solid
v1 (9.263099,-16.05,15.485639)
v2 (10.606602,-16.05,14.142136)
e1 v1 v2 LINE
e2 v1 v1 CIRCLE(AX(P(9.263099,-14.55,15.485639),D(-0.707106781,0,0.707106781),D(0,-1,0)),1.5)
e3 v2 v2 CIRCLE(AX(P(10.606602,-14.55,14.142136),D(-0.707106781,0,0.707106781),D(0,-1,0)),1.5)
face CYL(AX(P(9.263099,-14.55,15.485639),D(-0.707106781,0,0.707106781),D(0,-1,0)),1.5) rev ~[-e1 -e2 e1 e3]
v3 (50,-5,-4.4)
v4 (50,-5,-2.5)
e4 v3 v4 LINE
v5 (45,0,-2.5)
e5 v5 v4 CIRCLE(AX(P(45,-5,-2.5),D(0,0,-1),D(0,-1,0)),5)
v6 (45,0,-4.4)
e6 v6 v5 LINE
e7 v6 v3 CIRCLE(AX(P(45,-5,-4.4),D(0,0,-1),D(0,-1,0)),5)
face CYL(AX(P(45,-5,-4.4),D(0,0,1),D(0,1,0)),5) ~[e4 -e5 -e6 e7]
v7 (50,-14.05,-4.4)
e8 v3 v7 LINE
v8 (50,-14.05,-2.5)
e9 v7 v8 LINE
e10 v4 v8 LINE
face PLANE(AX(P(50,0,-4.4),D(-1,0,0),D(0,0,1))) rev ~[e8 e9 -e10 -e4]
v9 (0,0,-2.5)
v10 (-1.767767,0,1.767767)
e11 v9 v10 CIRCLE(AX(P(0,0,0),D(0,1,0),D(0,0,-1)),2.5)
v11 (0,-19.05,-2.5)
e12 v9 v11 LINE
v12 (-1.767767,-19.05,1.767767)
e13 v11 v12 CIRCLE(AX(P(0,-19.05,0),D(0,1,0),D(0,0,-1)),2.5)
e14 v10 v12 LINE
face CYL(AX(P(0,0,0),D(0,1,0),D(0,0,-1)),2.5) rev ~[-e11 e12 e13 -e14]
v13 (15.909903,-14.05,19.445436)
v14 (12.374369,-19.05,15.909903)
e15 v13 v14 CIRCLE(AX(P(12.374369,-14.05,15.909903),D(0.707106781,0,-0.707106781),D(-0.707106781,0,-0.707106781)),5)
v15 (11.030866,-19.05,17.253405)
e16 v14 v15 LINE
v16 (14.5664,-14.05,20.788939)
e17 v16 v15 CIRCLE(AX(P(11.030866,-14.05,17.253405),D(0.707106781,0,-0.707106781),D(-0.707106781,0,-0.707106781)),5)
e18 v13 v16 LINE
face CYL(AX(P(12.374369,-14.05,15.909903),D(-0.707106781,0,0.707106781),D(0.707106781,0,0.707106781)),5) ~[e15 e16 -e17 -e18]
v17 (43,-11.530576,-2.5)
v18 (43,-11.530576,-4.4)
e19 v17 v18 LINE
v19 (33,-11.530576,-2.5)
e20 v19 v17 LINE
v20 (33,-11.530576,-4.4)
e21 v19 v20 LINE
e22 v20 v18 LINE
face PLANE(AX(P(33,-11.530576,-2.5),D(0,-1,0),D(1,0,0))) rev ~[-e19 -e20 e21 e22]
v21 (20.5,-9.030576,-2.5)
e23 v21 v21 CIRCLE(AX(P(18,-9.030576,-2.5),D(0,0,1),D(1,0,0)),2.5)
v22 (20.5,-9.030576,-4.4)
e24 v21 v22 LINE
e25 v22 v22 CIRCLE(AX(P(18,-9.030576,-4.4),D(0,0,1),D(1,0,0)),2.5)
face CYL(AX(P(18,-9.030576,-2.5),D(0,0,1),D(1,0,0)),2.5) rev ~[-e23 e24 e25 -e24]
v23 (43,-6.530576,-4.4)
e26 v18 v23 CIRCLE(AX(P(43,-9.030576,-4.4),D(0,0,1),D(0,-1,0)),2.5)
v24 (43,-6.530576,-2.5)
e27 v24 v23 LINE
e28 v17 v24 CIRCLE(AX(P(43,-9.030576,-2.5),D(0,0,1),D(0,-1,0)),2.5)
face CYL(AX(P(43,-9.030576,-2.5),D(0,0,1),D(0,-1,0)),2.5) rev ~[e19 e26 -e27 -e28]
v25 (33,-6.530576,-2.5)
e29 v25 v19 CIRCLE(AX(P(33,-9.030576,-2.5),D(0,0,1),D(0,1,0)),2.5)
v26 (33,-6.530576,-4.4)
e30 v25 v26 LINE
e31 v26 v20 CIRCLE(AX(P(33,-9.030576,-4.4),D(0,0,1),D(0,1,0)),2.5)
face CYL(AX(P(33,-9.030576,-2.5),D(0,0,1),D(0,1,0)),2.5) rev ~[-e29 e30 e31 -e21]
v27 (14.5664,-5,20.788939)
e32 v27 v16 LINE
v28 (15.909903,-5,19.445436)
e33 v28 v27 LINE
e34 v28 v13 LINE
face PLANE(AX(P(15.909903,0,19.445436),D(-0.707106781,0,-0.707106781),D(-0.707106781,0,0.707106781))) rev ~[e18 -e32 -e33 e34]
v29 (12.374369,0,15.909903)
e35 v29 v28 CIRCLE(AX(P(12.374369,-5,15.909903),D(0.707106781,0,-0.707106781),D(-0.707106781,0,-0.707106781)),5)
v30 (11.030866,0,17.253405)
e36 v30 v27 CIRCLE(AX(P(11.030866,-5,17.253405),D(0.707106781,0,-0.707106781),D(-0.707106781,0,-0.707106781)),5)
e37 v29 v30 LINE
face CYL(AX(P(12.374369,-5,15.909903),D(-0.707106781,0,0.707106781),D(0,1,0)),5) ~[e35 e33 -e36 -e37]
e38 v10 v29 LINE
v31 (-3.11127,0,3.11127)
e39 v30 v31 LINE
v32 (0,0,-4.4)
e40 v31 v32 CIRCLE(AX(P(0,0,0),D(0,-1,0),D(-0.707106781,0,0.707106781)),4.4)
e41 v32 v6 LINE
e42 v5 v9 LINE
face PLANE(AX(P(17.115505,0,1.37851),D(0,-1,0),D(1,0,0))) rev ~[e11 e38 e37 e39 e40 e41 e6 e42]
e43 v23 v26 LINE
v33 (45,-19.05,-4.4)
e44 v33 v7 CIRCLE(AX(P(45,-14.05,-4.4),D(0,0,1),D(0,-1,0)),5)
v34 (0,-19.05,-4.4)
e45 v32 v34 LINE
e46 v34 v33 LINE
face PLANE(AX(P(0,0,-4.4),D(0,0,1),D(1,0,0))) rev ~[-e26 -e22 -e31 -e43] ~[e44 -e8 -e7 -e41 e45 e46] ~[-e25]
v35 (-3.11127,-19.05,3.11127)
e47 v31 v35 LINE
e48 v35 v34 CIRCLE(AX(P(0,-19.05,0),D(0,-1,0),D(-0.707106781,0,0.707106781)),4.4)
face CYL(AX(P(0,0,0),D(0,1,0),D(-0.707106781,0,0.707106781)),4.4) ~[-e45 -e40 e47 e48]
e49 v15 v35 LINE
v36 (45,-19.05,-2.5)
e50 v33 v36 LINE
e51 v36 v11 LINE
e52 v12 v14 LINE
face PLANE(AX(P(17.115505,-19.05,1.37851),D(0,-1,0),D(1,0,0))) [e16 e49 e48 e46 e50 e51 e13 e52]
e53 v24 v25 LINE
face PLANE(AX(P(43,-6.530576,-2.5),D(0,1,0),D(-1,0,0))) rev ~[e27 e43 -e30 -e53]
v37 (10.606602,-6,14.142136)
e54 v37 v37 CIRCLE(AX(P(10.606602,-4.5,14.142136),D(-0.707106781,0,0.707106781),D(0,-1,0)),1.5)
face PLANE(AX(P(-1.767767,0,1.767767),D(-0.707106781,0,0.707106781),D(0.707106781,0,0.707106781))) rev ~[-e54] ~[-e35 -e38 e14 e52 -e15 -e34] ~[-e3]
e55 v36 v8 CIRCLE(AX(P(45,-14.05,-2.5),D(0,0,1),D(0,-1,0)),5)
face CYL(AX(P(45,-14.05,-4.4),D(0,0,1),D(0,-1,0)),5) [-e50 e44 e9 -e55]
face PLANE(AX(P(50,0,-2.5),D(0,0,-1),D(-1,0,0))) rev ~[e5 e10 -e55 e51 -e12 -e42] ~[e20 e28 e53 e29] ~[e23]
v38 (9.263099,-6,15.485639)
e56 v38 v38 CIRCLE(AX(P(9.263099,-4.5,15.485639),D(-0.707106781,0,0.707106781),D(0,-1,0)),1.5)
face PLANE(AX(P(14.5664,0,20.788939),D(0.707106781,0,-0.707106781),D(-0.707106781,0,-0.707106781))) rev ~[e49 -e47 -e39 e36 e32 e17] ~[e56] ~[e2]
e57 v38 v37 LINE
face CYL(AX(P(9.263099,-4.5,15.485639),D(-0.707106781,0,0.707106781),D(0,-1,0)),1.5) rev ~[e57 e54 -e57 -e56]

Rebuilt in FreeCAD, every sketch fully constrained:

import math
import FreeCAD as App
import Part
import Sketcher
from FreeCAD import Vector
Q = App.Units.Quantity


def edges_at(feature, points):
    """Names of the edges that pass closest to the given points."""
    edges = feature.Shape.Edges
    near = lambda p: min(range(len(edges)), key=lambda i: edges[i].distToShape(Part.Vertex(*p))[0])
    return sorted({f"Edge{near(p) + 1}" for p in points})

doc = App.newDocument("Part")
body = doc.addObject("PartDesign::Body", "Body")

# Sketch on XZ plane
sketch1 = body.newObject("Sketcher::SketchObject", "Sketch")
sketch1.AttachmentSupport = (doc.getObject("XZ_Plane"), [""])
sketch1.MapMode = "FlatFace"
sketch1.addGeometry([
    Part.LineSegment(Vector(14.6, 20.8, 0), Vector(-3.1, 3.1, 0)),  # 0
    Part.ArcOfCircle(Part.Circle(Vector(0, 0, 0), Vector(0, 0, 1), 4.4), math.radians(135), math.radians(270)),  # 1
    Part.LineSegment(Vector(0, -4.4, 0), Vector(50, -4.4, 0)),  # 2
    Part.LineSegment(Vector(50, -4.4, 0), Vector(50, -2.5, 0)),  # 3
    Part.LineSegment(Vector(50, -2.5, 0), Vector(0, -2.5, 0)),  # 4
    Part.ArcOfCircle(Part.Circle(Vector(0, 0, 0), Vector(0, 0, 1), 2.5), math.radians(135), math.radians(270)),  # 5
    Part.LineSegment(Vector(-1.8, 1.8, 0), Vector(15.9, 19.4, 0)),  # 6
    Part.LineSegment(Vector(15.9, 19.4, 0), Vector(14.6, 20.8, 0)),  # 7
], False)
sketch1.addConstraint([
    Sketcher.Constraint("Tangent", 0, 2, 1, 1),
    Sketcher.Constraint("Tangent", 1, 2, 2, 1),
    Sketcher.Constraint("Coincident", 2, 2, 3, 1),
    Sketcher.Constraint("Coincident", 3, 2, 4, 1),
    Sketcher.Constraint("Tangent", 4, 2, 5, 2),
    Sketcher.Constraint("Tangent", 5, 1, 6, 1),
    Sketcher.Constraint("Coincident", 6, 2, 7, 1),
    Sketcher.Constraint("Coincident", 7, 2, 0, 1),
    Sketcher.Constraint("Horizontal", 2),
    Sketcher.Constraint("Vertical", 3),
    Sketcher.Constraint("Horizontal", 4),
    Sketcher.Constraint("Coincident", 1, 3, -1, 1),
    Sketcher.Constraint("Coincident", 5, 3, -1, 1),
    Sketcher.Constraint("Parallel", 0, 6),
    Sketcher.Constraint("Perpendicular", 6, 7),
    Sketcher.Constraint("Radius", 1, 4.4),
    Sketcher.Constraint("Radius", 5, 2.5),
    Sketcher.Constraint("DistanceX", 2, 1, 2, 2, 50.0),
    Sketcher.Constraint("Angle", 0, Q("-135 deg")),
    Sketcher.Constraint("Distance", 0, 25.0),
])
pad1 = body.newObject("PartDesign::Pad", "Pad")
pad1.Profile = sketch1
pad1.Length = 19.05

# Sketch on XY plane
sketch2 = body.newObject("Sketcher::SketchObject", "Sketch001")
sketch2.AttachmentSupport = (doc.getObject("XY_Plane"), [""])
sketch2.MapMode = "FlatFace"
sketch2.AttachmentOffset = App.Placement(Vector(0, 0, -2.5), App.Rotation())
sketch2.addGeometry([
    Part.Circle(Vector(18, -9, 0), Vector(0, 0, 1), 2.5),  # 0
    Part.LineSegment(Vector(33, -11.5, 0), Vector(43, -11.5, 0)),  # 1
    Part.ArcOfCircle(Part.Circle(Vector(43, -9, 0), Vector(0, 0, 1), 2.5), math.radians(-90), math.radians(90)),  # 2
    Part.LineSegment(Vector(43, -6.5, 0), Vector(33, -6.5, 0)),  # 3
    Part.ArcOfCircle(Part.Circle(Vector(33, -9, 0), Vector(0, 0, 1), 2.5), math.radians(90), math.radians(270)),  # 4
], False)
sketch2.addConstraint([
    Sketcher.Constraint("Tangent", 1, 2, 2, 1),
    Sketcher.Constraint("Tangent", 2, 2, 3, 1),
    Sketcher.Constraint("Tangent", 3, 2, 4, 1),
    Sketcher.Constraint("Tangent", 4, 2, 1, 1),
    Sketcher.Constraint("Horizontal", 1),
    Sketcher.Constraint("Horizontal", 3),
    Sketcher.Constraint("Equal", 0, 2),
    Sketcher.Constraint("Horizontal", 0, 3, 2, 3),
    Sketcher.Constraint("Diameter", 0, 5.0),
    Sketcher.Constraint("DistanceX", 1, 1, 1, 2, 10.0),
    Sketcher.Constraint("DistanceX", -1, 1, 0, 3, 18.0),
    Sketcher.Constraint("DistanceX", -1, 1, 2, 3, 43.0),
    Sketcher.Constraint("DistanceY", 0, 3, -1, 1, 9.030576),
])
pocket1 = body.newObject("PartDesign::Pocket", "Pocket")
pocket1.Profile = sketch2
pocket1.Type = "ThroughAll"
doc.recompute()

fillet = body.newObject("PartDesign::Fillet", "Fillet")
fillet.Base = (pocket1, edges_at(pocket1, [(50, -19.05, -3.45), (50, 0, -3.45)]))
fillet.Radius = 5
doc.recompute()

fillet2 = body.newObject("PartDesign::Fillet", "Fillet001")
fillet2.Base = (fillet, edges_at(fillet, [(15.238, -19.05, 20.117), (15.238, 0, 20.117)]))
fillet2.Radius = 5

# Sketch on an angled plane
sketch3 = body.newObject("Sketcher::SketchObject", "Sketch002")
sketch3.Placement = App.Placement(Vector(-3.11127, 0, 3.11127), App.Rotation(Vector(0, -1, 0), Vector(0.707106781, 0, 0.707106781), Vector(-0.707106781, 0, 0.707106781), "ZXY"))
sketch3.addGeometry([
    Part.Circle(Vector(4.5, 17.5, 0), Vector(0, 0, 1), 1.5),
    Part.Circle(Vector(14.6, 17.5, 0), Vector(0, 0, 1), 1.5),
], False)
sketch3.addConstraint([
    Sketcher.Constraint("Equal", 0, 1),
    Sketcher.Constraint("Horizontal", 0, 3, 1, 3),
    Sketcher.Constraint("Diameter", 0, 3.0),
    Sketcher.Constraint("DistanceX", -1, 1, 0, 3, 4.5),
    Sketcher.Constraint("DistanceY", -1, 1, 0, 3, 17.5),
    Sketcher.Constraint("DistanceX", -1, 1, 1, 3, 14.55),
])
pocket2 = body.newObject("PartDesign::Pocket", "Pocket001")
pocket2.Profile = sketch3
pocket2.Length = 1.9

doc.recompute()
